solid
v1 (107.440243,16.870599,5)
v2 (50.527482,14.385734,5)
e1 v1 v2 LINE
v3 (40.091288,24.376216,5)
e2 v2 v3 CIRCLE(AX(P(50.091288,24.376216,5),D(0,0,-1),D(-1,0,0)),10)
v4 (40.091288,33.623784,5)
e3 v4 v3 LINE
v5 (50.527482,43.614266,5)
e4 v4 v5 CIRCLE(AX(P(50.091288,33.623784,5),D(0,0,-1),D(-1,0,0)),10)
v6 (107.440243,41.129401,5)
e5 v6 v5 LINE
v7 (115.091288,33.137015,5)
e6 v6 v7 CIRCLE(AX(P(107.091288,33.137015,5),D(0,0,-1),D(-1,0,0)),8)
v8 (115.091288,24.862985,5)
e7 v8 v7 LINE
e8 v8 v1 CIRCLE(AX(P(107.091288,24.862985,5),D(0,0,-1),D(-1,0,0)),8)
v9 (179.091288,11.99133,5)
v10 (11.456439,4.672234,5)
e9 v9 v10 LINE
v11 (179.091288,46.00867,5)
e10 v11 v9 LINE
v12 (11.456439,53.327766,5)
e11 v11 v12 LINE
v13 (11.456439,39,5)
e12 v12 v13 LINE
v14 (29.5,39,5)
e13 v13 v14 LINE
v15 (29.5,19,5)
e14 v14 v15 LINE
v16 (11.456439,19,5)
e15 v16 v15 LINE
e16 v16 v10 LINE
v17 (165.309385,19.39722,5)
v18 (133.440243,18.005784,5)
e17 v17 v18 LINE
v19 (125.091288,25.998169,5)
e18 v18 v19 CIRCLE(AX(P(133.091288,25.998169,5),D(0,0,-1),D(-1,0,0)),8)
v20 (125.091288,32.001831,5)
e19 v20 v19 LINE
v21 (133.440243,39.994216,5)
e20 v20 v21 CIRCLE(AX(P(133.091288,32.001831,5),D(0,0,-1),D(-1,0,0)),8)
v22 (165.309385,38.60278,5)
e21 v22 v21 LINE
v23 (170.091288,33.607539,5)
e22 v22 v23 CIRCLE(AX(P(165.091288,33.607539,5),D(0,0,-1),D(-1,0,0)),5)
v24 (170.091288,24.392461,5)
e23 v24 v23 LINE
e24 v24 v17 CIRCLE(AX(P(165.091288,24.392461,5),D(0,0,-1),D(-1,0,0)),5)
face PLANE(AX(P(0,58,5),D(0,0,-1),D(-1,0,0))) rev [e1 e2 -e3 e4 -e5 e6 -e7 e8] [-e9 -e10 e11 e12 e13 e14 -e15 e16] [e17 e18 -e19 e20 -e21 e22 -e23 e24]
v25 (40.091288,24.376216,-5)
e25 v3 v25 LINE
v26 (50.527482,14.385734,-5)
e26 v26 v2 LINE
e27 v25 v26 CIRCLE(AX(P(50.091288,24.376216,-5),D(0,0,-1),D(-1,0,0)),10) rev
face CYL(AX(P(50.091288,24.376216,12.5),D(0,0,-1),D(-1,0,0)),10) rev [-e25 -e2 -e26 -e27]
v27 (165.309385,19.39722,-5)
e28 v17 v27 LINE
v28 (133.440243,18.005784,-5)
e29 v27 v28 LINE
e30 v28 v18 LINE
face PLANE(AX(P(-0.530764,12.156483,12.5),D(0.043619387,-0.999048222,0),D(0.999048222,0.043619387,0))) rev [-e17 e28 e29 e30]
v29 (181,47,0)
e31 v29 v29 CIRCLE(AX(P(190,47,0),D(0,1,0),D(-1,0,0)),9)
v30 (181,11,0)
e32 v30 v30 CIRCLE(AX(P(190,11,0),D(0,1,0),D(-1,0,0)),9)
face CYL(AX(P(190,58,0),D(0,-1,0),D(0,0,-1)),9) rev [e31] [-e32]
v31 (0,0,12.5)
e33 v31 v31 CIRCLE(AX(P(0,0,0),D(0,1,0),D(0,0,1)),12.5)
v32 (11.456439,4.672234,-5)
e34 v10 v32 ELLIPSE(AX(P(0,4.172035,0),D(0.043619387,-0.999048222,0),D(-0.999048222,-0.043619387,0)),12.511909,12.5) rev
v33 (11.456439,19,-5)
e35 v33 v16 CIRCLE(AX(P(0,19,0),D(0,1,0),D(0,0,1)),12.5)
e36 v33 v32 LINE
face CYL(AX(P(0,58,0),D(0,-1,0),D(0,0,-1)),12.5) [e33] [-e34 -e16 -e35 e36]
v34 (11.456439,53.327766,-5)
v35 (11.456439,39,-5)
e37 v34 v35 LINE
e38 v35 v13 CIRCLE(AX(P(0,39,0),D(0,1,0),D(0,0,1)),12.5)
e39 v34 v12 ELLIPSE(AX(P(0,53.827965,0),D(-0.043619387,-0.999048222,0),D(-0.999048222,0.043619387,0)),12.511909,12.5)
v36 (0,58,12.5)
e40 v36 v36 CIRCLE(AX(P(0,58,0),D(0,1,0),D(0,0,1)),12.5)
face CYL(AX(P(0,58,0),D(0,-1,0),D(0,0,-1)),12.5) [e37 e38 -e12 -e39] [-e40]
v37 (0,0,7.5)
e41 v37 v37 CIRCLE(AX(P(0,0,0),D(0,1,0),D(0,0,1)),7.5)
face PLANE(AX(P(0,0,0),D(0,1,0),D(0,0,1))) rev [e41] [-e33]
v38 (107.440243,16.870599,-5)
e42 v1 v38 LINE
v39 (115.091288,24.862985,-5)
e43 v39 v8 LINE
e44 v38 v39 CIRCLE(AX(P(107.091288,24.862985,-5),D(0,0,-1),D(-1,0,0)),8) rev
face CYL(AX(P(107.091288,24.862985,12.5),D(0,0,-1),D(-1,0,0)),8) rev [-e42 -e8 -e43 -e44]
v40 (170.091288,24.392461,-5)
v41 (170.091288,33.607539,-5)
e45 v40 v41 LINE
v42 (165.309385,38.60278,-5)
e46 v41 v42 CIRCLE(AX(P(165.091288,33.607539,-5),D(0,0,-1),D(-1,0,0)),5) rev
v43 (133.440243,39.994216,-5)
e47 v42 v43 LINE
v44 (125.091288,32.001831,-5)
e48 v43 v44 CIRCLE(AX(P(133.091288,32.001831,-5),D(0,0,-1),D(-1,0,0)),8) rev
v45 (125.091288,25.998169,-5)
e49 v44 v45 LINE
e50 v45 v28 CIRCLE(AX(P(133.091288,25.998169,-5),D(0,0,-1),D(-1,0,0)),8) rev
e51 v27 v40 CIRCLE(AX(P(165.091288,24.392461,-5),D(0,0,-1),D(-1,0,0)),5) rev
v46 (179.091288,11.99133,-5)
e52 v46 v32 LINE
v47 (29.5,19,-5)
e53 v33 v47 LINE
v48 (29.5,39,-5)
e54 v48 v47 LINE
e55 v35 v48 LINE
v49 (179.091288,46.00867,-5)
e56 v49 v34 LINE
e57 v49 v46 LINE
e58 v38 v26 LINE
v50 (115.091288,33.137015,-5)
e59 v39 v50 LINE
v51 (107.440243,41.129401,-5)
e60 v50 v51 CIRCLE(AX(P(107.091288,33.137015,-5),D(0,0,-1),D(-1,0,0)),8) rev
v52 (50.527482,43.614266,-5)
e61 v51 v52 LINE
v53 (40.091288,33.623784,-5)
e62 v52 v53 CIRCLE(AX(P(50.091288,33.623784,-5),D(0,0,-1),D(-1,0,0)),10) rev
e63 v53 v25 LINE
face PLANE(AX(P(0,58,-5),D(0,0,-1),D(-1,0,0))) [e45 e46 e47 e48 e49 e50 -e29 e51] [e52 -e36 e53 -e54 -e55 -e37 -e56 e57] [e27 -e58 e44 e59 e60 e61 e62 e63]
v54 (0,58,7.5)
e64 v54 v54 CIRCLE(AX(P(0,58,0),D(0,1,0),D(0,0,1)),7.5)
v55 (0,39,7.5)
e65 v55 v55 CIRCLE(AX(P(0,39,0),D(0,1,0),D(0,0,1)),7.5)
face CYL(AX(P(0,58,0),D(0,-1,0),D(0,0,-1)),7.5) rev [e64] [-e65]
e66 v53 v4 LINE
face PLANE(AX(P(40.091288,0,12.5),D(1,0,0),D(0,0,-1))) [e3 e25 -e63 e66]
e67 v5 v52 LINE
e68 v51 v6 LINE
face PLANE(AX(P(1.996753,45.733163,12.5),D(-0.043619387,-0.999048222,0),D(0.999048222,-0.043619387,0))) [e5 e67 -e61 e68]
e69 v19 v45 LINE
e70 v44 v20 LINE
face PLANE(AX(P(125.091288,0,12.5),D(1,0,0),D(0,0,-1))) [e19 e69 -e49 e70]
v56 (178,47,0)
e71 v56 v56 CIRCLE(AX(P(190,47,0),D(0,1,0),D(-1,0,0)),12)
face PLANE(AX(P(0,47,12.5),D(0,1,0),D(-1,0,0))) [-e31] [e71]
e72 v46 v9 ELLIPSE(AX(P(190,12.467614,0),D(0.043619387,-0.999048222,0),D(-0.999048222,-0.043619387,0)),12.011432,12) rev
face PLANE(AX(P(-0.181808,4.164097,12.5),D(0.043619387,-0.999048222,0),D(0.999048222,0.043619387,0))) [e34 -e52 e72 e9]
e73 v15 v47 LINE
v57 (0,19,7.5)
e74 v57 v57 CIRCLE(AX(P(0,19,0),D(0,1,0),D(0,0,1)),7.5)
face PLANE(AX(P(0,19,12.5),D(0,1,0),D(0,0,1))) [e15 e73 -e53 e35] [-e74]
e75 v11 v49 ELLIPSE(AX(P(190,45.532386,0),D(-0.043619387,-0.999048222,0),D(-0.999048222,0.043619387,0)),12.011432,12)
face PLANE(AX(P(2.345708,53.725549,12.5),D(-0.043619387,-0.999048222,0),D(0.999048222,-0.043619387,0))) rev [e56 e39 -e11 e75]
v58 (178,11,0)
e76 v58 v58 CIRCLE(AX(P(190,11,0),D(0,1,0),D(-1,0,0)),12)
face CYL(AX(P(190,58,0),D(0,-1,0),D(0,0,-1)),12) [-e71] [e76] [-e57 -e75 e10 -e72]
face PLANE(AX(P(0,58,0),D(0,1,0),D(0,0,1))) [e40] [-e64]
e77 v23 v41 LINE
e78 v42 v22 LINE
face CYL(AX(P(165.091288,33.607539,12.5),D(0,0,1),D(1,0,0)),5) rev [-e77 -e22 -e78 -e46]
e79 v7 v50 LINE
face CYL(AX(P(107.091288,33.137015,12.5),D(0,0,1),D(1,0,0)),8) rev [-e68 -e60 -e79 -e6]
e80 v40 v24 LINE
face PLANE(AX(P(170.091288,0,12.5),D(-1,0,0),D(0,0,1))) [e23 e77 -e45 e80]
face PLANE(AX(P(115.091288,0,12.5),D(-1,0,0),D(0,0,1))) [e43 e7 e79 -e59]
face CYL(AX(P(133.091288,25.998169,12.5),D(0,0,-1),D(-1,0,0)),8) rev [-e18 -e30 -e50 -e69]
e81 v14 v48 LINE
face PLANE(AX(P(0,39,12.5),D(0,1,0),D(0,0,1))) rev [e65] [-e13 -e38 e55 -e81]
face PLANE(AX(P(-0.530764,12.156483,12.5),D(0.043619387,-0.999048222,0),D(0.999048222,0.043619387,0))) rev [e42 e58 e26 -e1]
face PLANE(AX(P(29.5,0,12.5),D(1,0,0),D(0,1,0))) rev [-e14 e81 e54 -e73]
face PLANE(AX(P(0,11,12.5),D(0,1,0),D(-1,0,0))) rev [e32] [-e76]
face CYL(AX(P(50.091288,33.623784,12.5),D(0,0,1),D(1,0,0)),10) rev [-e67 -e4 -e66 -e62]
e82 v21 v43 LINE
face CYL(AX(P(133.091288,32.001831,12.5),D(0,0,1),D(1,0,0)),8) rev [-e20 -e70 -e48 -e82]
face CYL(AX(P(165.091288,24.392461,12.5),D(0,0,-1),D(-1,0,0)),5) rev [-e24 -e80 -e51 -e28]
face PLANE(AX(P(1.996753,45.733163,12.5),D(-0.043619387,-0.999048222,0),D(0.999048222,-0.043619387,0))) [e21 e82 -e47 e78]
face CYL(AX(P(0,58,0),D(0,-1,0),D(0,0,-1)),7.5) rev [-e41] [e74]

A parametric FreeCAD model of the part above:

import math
import FreeCAD as App
import Part
import Sketcher

V = App.Vector
Q = App.Units.Quantity


def edges_at(feature, points):
    """Names of the edges that pass closest to the given points."""
    edges = feature.Shape.Edges
    near = lambda p: min(range(len(edges)), key=lambda i: edges[i].distToShape(Part.Vertex(*p))[0])
    return sorted({f"Edge{near(p) + 1}" for p in points})


def add_polygon(sketch, points):
    """Adds a closed chain of lines whose ends are joined by coincident constraints."""
    first, n = sketch.GeometryCount, len(points)
    for a, b in zip(points, points[1:] + points[:1]):
        sketch.addGeometry(Part.LineSegment(App.Vector(*a, 0), App.Vector(*b, 0)), False)
    for i in range(n):
        sketch.addConstraint(Sketcher.Constraint("Coincident", first + i, 2, first + (i + 1) % n, 1))

doc = App.newDocument("Part")
body = doc.addObject("PartDesign::Body", "Body")

sketch1 = body.newObject("Sketcher::SketchObject", "Sketch")
sketch1.AttachmentSupport = (doc.getObject("XZ_Plane"), [""])
sketch1.MapMode = "FlatFace"
sketch1.addGeometry([
    Part.LineSegment(V(11, 5, 0), V(179, 5, 0)),
    Part.ArcOfCircle(Part.Circle(V(190, 0, 0), V(0, 0, 1), 12), math.radians(-155), math.radians(155)),
    Part.LineSegment(V(179, -5, 0), V(11, -5, 0)),
    Part.ArcOfCircle(Part.Circle(V(0, 0, 0), V(0, 0, 1), 12), math.radians(24), math.radians(336)),
    Part.Circle(V(0, 0, 0), V(0, 0, 1), 8),
    Part.Circle(V(190, 0, 0), V(0, 0, 1), 9),
], False)
sketch1.addConstraint([
    Sketcher.Constraint("Coincident", 0, 2, 1, 2),
    Sketcher.Constraint("Coincident", 1, 1, 2, 1),
    Sketcher.Constraint("Coincident", 2, 2, 3, 2),
    Sketcher.Constraint("Coincident", 3, 1, 0, 1),
    Sketcher.Constraint("Horizontal", 0),
    Sketcher.Constraint("Horizontal", 2),
    Sketcher.Constraint("Coincident", 3, 3, -1, 1),
    Sketcher.Constraint("Coincident", 4, 3, -1, 1),
    Sketcher.Constraint("Coincident", 5, 3, 1, 3),
    Sketcher.Constraint("Symmetric", 0, 2, 1, 1, -1),
    Sketcher.Constraint("Diameter", 4, Q("15 mm")),
    Sketcher.Constraint("Diameter", 5, Q("18 mm")),
    Sketcher.Constraint("Radius", 1, Q("12 mm")),
    Sketcher.Constraint("Radius", 3, Q("12.5 mm")),
    Sketcher.Constraint("DistanceX", -1, 1, 1, 3, Q("190 mm")),
    Sketcher.Constraint("DistanceY", -1, 1, 0, 2, Q("5 mm")),
])
pad1 = body.newObject("PartDesign::Pad", "Pad")
pad1.Profile = sketch1
pad1.Length = 58
pad1.Reversed = True

sketch2 = body.newObject("Sketcher::SketchObject", "Sketch001")
sketch2.AttachmentSupport = (doc.getObject("XY_Plane"), [""])
sketch2.MapMode = "FlatFace"
sketch2.AttachmentOffset = App.Placement(V(0, 0, -5), App.Rotation())
add_polygon(sketch2, [(202, 58), (202, 47), (179.1, 47), (179.1, 46), (11.5, 53.3), (11.5, 58)])
add_polygon(sketch2, [(202, 11), (202, 0), (11.5, 0), (11.5, 4.7), (179.1, 12), (179.1, 11)])
add_polygon(sketch2, [(170.1, 38.4), (170.1, 19.6), (125.1, 17.6), (125.1, 40.4)])
add_polygon(sketch2, [(115.1, 40.8), (115.1, 17.2), (40.1, 13.9), (40.1, 44.1)])
add_polygon(sketch2, [(29.5, 39), (29.5, 19), (-12.5, 19), (-12.5, 39)])
sketch2.addConstraint([
    Sketcher.Constraint("Vertical", 0),
    Sketcher.Constraint("Horizontal", 1),
    Sketcher.Constraint("Vertical", 2),
    Sketcher.Constraint("Vertical", 4),
    Sketcher.Constraint("Horizontal", 5),
    Sketcher.Constraint("Vertical", 6),
    Sketcher.Constraint("Horizontal", 7),
    Sketcher.Constraint("Vertical", 8),
    Sketcher.Constraint("Vertical", 10),
    Sketcher.Constraint("Horizontal", 11),
    Sketcher.Constraint("Vertical", 12),
    Sketcher.Constraint("Vertical", 14),
    Sketcher.Constraint("Vertical", 16),
    Sketcher.Constraint("Vertical", 18),
    Sketcher.Constraint("Vertical", 20),
    Sketcher.Constraint("Horizontal", 21),
    Sketcher.Constraint("Vertical", 22),
    Sketcher.Constraint("Horizontal", 23),
    Sketcher.Constraint("PointOnObject", 6, 2, -1),
    Sketcher.Constraint("Parallel", 9, 13),
    Sketcher.Constraint("Parallel", 3, 15),
    Sketcher.Constraint("Parallel", 13, 17),
    Sketcher.Constraint("Parallel", 15, 19),
    Sketcher.Constraint("Vertical", 5, 2, 6, 2),
    Sketcher.Constraint("Vertical", 4, 2, 7, 2),
    Sketcher.Constraint("Vertical", 2, 2, 9, 2),
    Sketcher.Constraint("Equal", 0, 6),
    Sketcher.Constraint("Equal", 4, 8),
    Sketcher.Constraint("Equal", 2, 10),
    Sketcher.Constraint("DistanceX", 21, 2, 21, 1, Q("42 mm")),
    Sketcher.Constraint("DistanceY", 0, 2, 0, 1, Q("11 mm")),
    Sketcher.Constraint("DistanceY", 20, 2, 20, 1, Q("20 mm")),
    Sketcher.Constraint("DistanceX", -1, 1, 0, 2, Q("202 mm")),
    Sketcher.Constraint("DistanceY", -1, 1, 0, 2, Q("47 mm")),
    Sketcher.Constraint("DistanceY", -1, 1, 20, 2, Q("19 mm")),
    Sketcher.Constraint("Angle", 3, Q("177.5 deg")),
    Sketcher.Constraint("DistanceX", 12, 2, 9, 2, Q("9 mm")),
    Sketcher.Constraint("DistanceX", 13, 2, 12, 2, Q("45 mm")),
    Sketcher.Constraint("DistanceX", 16, 2, 13, 2, Q("10 mm")),
    Sketcher.Constraint("DistanceX", 17, 2, 16, 2, Q("75 mm")),
    Sketcher.Constraint("DistanceX", -1, 1, 20, 2, Q("29.5 mm")),
    Sketcher.Constraint("DistanceY", 16, 2, 16, 1, Q("23.590698 mm")),
    Sketcher.Constraint("DistanceX", 5, 1, 5, 2, Q("190.543561 mm")),
    Sketcher.Constraint("DistanceY", 2, 2, 2, 1, Q("0.99133 mm")),
    Sketcher.Constraint("DistanceY", 14, 1, 14, 2, Q("22.717479 mm")),
    Sketcher.Constraint("Distance", 3, Q("167.794552 mm")),
    Sketcher.Constraint("DistanceY", -1, 1, 13, 2, Q("17.64126 mm")),
    Sketcher.Constraint("DistanceY", -1, 1, 16, 2, Q("17.204651 mm")),
])
pocket1 = body.newObject("PartDesign::Pocket", "Pocket")
pocket1.Profile = sketch2
pocket1.Type = "ThroughAll"
pocket1.Midplane = True

sketch3 = body.newObject("Sketcher::SketchObject", "Sketch002")
sketch3.AttachmentSupport = (doc.getObject("XZ_Plane"), [""])
sketch3.MapMode = "FlatFace"
sketch3.AttachmentOffset = App.Placement(V(0, 0, -11.99133), App.Rotation())
sketch3.addGeometry([
    Part.LineSegment(V(179, -5, 0), V(179, 5, 0)),
    Part.ArcOfCircle(Part.Circle(V(190, 0, 0), V(0, 0, 1), 12), math.radians(155), math.radians(205)),
], False)
sketch3.addConstraint([
    Sketcher.Constraint("Coincident", 0, 1, 1, 2),
    Sketcher.Constraint("Coincident", 1, 1, 0, 2),
    Sketcher.Constraint("Vertical", 0),
    Sketcher.Constraint("PointOnObject", 1, 3, -1),
    Sketcher.Constraint("Radius", 1, Q("12 mm")),
    Sketcher.Constraint("DistanceY", 0, 1, 0, 2, Q("10 mm")),
    Sketcher.Constraint("DistanceX", -1, 1, 1, 3, Q("190 mm")),
])
pad2 = body.newObject("PartDesign::Pad", "Pad001")
pad2.Profile = sketch3
pad2.Length = 0.99133

sketch4 = body.newObject("Sketcher::SketchObject", "Sketch003")
sketch4.AttachmentSupport = (doc.getObject("XZ_Plane"), [""])
sketch4.MapMode = "FlatFace"
sketch4.AttachmentOffset = App.Placement(V(0, 0, -4.717797), App.Rotation())
sketch4.addGeometry([
    Part.LineSegment(V(11, 5, 0), V(11, -5, 0)),
    Part.ArcOfCircle(Part.Circle(V(0, 0, 0), V(0, 0, 1), 12), math.radians(-24), math.radians(0)),
    Part.ArcOfCircle(Part.Circle(V(0, 0, 0), V(0, 0, 1), 12), math.radians(0), math.radians(24)),
], False)
sketch4.addConstraint([
    Sketcher.Constraint("Coincident", 0, 2, 1, 1),
    Sketcher.Constraint("Tangent", 1, 2, 2, 1),
    Sketcher.Constraint("Coincident", 2, 2, 0, 1),
    Sketcher.Constraint("Vertical", 0),
    Sketcher.Constraint("Coincident", 1, 3, -1, 1),
    Sketcher.Constraint("Equal", 1, 2),
    Sketcher.Constraint("PointOnObject", 1, 2, -1),
    Sketcher.Constraint("Radius", 1, Q("12.5 mm")),
    Sketcher.Constraint("DistanceY", 0, 2, 0, 1, Q("10 mm")),
])
pad3 = body.newObject("PartDesign::Pad", "Pad002")
pad3.Profile = sketch4
pad3.Length = 4.717797
doc.recompute()

datumplane = body.newObject("PartDesign::Plane", "DatumPlane")
datumplane.AttachmentSupport = (doc.getObject("XZ_Plane"), [""])
datumplane.MapMode = "FlatFace"
datumplane.AttachmentOffset = App.Placement(V(0, 0, -29), App.Rotation())
mirrored = body.newObject("PartDesign::Mirrored", "Mirrored")
mirrored.Originals = [pad2, pad3]
mirrored.MirrorPlane = (datumplane, [""])
body.Tip = mirrored
doc.recompute()

fillet = body.newObject("PartDesign::Fillet", "Fillet")
fillet.Base = (mirrored, edges_at(mirrored, [(170.091, 19.606, 0), (170.091, 38.394, 0)]))
fillet.Radius = 5
doc.recompute()

fillet2 = body.newObject("PartDesign::Fillet", "Fillet001")
fillet2.Base = (fillet, edges_at(fillet, [
    (115.091, 17.205, 0),
    (115.091, 40.795, 0),
    (125.091, 40.359, 0),
    (125.091, 17.641, 0),
]))
fillet2.Radius = 8
doc.recompute()

fillet3 = body.newObject("PartDesign::Fillet", "Fillet002")
fillet3.Base = (fillet2, edges_at(fillet2, [(40.091, 44.07, 0), (40.091, 13.93, 0)]))
fillet3.Radius = 10

doc.recompute()
